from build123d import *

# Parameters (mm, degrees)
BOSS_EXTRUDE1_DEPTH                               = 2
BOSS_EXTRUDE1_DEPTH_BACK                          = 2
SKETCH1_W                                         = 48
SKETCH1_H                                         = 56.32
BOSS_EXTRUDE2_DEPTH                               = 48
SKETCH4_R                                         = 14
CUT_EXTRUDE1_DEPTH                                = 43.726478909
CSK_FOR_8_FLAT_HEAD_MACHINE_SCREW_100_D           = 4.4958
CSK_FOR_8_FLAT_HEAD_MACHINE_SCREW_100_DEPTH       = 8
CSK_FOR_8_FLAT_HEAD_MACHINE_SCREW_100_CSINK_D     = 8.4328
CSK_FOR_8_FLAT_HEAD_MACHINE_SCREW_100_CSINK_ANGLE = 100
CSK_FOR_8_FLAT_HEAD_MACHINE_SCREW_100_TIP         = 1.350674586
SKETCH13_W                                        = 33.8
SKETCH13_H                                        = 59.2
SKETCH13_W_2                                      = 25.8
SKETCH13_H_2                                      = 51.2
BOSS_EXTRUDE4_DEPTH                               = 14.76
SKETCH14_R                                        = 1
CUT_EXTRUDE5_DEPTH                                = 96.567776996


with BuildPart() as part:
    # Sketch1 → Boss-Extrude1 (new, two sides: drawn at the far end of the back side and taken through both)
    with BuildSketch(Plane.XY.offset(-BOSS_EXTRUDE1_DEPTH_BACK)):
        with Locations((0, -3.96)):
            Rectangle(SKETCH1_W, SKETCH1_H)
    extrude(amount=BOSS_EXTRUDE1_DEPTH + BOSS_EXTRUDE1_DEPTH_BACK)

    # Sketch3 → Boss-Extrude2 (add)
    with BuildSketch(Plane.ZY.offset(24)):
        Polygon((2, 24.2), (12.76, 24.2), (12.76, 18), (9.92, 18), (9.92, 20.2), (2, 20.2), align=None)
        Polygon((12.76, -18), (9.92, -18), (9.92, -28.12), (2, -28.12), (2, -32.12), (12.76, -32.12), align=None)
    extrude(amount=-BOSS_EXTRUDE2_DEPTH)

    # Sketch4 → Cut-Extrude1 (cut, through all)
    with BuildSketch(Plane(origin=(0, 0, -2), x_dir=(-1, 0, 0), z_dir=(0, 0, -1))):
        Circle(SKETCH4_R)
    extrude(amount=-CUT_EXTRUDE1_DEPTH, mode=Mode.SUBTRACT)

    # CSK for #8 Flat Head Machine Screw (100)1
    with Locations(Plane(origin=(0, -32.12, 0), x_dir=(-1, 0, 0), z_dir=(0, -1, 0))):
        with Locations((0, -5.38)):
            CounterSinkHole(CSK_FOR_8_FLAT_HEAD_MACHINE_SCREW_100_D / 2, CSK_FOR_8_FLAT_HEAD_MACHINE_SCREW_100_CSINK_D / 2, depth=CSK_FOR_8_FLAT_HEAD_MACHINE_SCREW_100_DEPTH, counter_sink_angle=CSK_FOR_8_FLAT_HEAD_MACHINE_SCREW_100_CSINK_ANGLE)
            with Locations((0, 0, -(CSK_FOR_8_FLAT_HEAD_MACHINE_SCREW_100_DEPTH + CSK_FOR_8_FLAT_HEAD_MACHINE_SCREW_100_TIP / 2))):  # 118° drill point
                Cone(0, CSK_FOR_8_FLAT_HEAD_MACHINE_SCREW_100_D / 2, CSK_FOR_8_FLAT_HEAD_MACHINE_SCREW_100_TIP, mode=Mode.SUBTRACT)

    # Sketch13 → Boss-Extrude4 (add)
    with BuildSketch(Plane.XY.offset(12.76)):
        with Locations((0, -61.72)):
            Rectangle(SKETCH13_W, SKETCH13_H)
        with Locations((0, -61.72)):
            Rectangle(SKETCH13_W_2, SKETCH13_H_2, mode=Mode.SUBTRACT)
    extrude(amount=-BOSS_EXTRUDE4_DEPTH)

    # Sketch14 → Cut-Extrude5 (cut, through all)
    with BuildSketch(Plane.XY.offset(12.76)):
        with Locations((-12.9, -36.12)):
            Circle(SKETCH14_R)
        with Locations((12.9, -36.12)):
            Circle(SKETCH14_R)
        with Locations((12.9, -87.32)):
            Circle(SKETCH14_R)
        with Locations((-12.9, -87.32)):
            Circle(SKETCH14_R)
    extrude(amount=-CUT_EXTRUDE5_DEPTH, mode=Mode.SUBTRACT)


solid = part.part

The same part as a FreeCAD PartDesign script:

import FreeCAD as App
import Part
import Sketcher

V = App.Vector
Q = App.Units.Quantity

doc = App.newDocument("Part")
params = doc.addObject("Spreadsheet::Sheet", "Params")
for row, (alias, value) in enumerate([
    ("sketch1_width", "48 mm"),
    ("sketch1_height", "56.32 mm"),
    ("pad1_length", "2 mm"),
    ("pad1_length2", "2 mm"),
    ("sketch2_width", "4 mm"),
    ("sketch2_width2", "2.2 mm"),
    ("sketch2_width3", "10.12 mm"),
    ("sketch2_height", "10.76 mm"),
    ("sketch2_height2", "7.92 mm"),
    ("pad2_length", "48 mm"),
    ("sketch3_diameter", "28 mm"),
    ("hole_diameter", "4.4958 mm"),
    ("hole_depth", "8 mm"),
    ("hole_csink_diameter", "8.4328 mm"),
    ("sketch5_width", "33.8 mm"),
    ("sketch5_width2", "25.8 mm"),
    ("sketch5_height", "59.2 mm"),
    ("sketch5_height2", "51.2 mm"),
    ("pad3_length", "14.76 mm"),
    ("sketch6_diameter", "2 mm"),
], start=1):
    params.set(f"A{row}", alias)
    params.set(f"B{row}", "=" + value)
    params.setAlias(f"B{row}", alias)

body = doc.addObject("PartDesign::Body", "Body")

# Sketch on XY plane
sketch1 = body.newObject("Sketcher::SketchObject", "Sketch")
sketch1.AttachmentSupport = (doc.getObject("XY_Plane"), [""])
sketch1.MapMode = "FlatFace"
sketch1.addGeometry([
    Part.LineSegment(V(-24, 24, 0), V(-24, -32, 0)),
    Part.LineSegment(V(-24, -32, 0), V(24, -32, 0)),
    Part.LineSegment(V(24, -32, 0), V(24, 24, 0)),
    Part.LineSegment(V(24, 24, 0), V(-24, 24, 0)),
], False)
sketch1.addConstraint([
    Sketcher.Constraint("Coincident", 0, 2, 1, 1),
    Sketcher.Constraint("Coincident", 1, 2, 2, 1),
    Sketcher.Constraint("Coincident", 2, 2, 3, 1),
    Sketcher.Constraint("Coincident", 3, 2, 0, 1),
    Sketcher.Constraint("Vertical", 0),
    Sketcher.Constraint("Horizontal", 1),
    Sketcher.Constraint("Vertical", 2),
    Sketcher.Constraint("Horizontal", 3),
    Sketcher.Constraint("DistanceX", 1, 1, 1, 2, Q("48 mm")),
    Sketcher.Constraint("DistanceX", 0, 2, -1, 1, Q("24 mm")),
    Sketcher.Constraint("DistanceY", 0, 2, 0, 1, Q("56.32 mm")),
    Sketcher.Constraint("DistanceY", -1, 1, 2, 2, Q("24.2 mm")),
])
sketch1.setExpression("Constraints[8]", "Params.sketch1_width")
sketch1.setExpression("Constraints[10]", "Params.sketch1_height")
pad1 = body.newObject("PartDesign::Pad", "Pad")
pad1.Profile = sketch1
pad1.Type = "TwoLengths"
pad1.setExpression("Length", "Params.pad1_length")
pad1.setExpression("Length2", "Params.pad1_length2")

# Sketch on YZ plane
sketch2 = body.newObject("Sketcher::SketchObject", "Sketch001")
sketch2.AttachmentSupport = (doc.getObject("YZ_Plane"), [""])
sketch2.MapMode = "FlatFace"
sketch2.AttachmentOffset = App.Placement(V(0, 0, -24), App.Rotation())
sketch2.addGeometry([
    Part.LineSegment(V(24.2, 12.8, 0), V(24.2, 2, 0)),  # 0
    Part.LineSegment(V(24.2, 2, 0), V(20.2, 2, 0)),  # 1
    Part.LineSegment(V(20.2, 2, 0), V(20.2, 9.9, 0)),  # 2
    Part.LineSegment(V(20.2, 9.9, 0), V(18, 9.9, 0)),  # 3
    Part.LineSegment(V(18, 9.9, 0), V(18, 12.8, 0)),  # 4
    Part.LineSegment(V(18, 12.8, 0), V(24.2, 12.8, 0)),  # 5
    Part.LineSegment(V(-18, 12.8, 0), V(-18, 9.9, 0)),  # 6
    Part.LineSegment(V(-18, 9.9, 0), V(-28.1, 9.9, 0)),  # 7
    Part.LineSegment(V(-28.1, 9.9, 0), V(-28.1, 2, 0)),  # 8
    Part.LineSegment(V(-28.1, 2, 0), V(-32.1, 2, 0)),  # 9
    Part.LineSegment(V(-32.1, 2, 0), V(-32.1, 12.8, 0)),  # 10
    Part.LineSegment(V(-32.1, 12.8, 0), V(-18, 12.8, 0)),  # 11
], False)
sketch2.addConstraint([
    Sketcher.Constraint("Coincident", 0, 2, 1, 1),
    Sketcher.Constraint("Coincident", 1, 2, 2, 1),
    Sketcher.Constraint("Coincident", 2, 2, 3, 1),
    Sketcher.Constraint("Coincident", 3, 2, 4, 1),
    Sketcher.Constraint("Coincident", 4, 2, 5, 1),
    Sketcher.Constraint("Coincident", 5, 2, 0, 1),
    Sketcher.Constraint("Coincident", 6, 2, 7, 1),
    Sketcher.Constraint("Coincident", 7, 2, 8, 1),
    Sketcher.Constraint("Coincident", 8, 2, 9, 1),
    Sketcher.Constraint("Coincident", 9, 2, 10, 1),
    Sketcher.Constraint("Coincident", 10, 2, 11, 1),
    Sketcher.Constraint("Coincident", 11, 2, 6, 1),
    Sketcher.Constraint("Vertical", 0),
    Sketcher.Constraint("Horizontal", 1),
    Sketcher.Constraint("Vertical", 2),
    Sketcher.Constraint("Horizontal", 3),
    Sketcher.Constraint("Vertical", 4),
    Sketcher.Constraint("Horizontal", 5),
    Sketcher.Constraint("Vertical", 6),
    Sketcher.Constraint("Horizontal", 7),
    Sketcher.Constraint("Vertical", 8),
    Sketcher.Constraint("Horizontal", 9),
    Sketcher.Constraint("Vertical", 10),
    Sketcher.Constraint("Horizontal", 11),
    Sketcher.Constraint("Symmetric", 3, 2, 6, 2, -2),
    Sketcher.Constraint("Horizontal", 1, 2, 8, 2),
    Sketcher.Constraint("Horizontal", 5, 2, 10, 2),
    Sketcher.Constraint("Equal", 1, 9),
    Sketcher.Constraint("DistanceX", 1, 2, 1, 1, Q("4 mm")),
    Sketcher.Constraint("DistanceX", 3, 2, 3, 1, Q("2.2 mm")),
    Sketcher.Constraint("DistanceY", -1, 1, 0, 2, Q("2 mm")),
    Sketcher.Constraint("DistanceX", -1, 1, 3, 2, Q("18 mm")),
    Sketcher.Constraint("DistanceX", 7, 2, 7, 1, Q("10.12 mm")),
    Sketcher.Constraint("DistanceY", 0, 2, 0, 1, Q("10.76 mm")),
    Sketcher.Constraint("DistanceY", 2, 1, 2, 2, Q("7.92 mm")),
])
sketch2.setExpression("Constraints[28]", "Params.sketch2_width")
sketch2.setExpression("Constraints[29]", "Params.sketch2_width2")
sketch2.setExpression("Constraints[32]", "Params.sketch2_width3")
sketch2.setExpression("Constraints[33]", "Params.sketch2_height")
sketch2.setExpression("Constraints[34]", "Params.sketch2_height2")
pad2 = body.newObject("PartDesign::Pad", "Pad001")
pad2.Profile = sketch2
pad2.setExpression("Length", "Params.pad2_length")

# Sketch on XY plane
sketch3 = body.newObject("Sketcher::SketchObject", "Sketch002")
sketch3.AttachmentSupport = (doc.getObject("XY_Plane"), [""])
sketch3.MapMode = "FlatFace"
sketch3.AttachmentOffset = App.Placement(V(0, 0, -2), App.Rotation())
sketch3.addGeometry(Part.Circle(V(0, 0, 0), V(0, 0, 1), 14), False)
sketch3.addConstraint([
    Sketcher.Constraint("Coincident", 0, 3, -1, 1),
    Sketcher.Constraint("Diameter", 0, Q("28 mm")),
])
sketch3.setExpression("Constraints[1]", "Params.sketch3_diameter")
pocket1 = body.newObject("PartDesign::Pocket", "Pocket")
pocket1.Profile = sketch3
pocket1.Type = "ThroughAll"
pocket1.Reversed = True

# Sketch on XZ plane
sketch4 = body.newObject("Sketcher::SketchObject", "Sketch003")
sketch4.AttachmentSupport = (doc.getObject("XZ_Plane"), [""])
sketch4.MapMode = "FlatFace"
sketch4.AttachmentOffset = App.Placement(V(0, 0, 32.12), App.Rotation())
sketch4.addGeometry(Part.Circle(V(0, 5.4, 0), V(0, 0, 1), 2.2), False)
sketch4.addConstraint([
    Sketcher.Constraint("PointOnObject", 0, 3, -2),
    Sketcher.Constraint("Diameter", 0, Q("4.4958 mm")),
    Sketcher.Constraint("DistanceY", -1, 1, 0, 3, Q("5.38 mm")),
])
doc.recompute()
hole = body.newObject("PartDesign::Hole", "Hole")
hole.Profile = sketch4
hole.ThreadType = "None"
hole.setExpression("Diameter", "Params.hole_diameter")
hole.DepthType = "Dimension"
hole.setExpression("Depth", "Params.hole_depth")
hole.DrillPoint = "Angled"
hole.DrillPointAngle = 118
hole.HoleCutType = "Countersink"
hole.setExpression("HoleCutDiameter", "Params.hole_csink_diameter")
hole.HoleCutCountersinkAngle = 100

# Sketch on XY plane
sketch5 = body.newObject("Sketcher::SketchObject", "Sketch004")
sketch5.AttachmentSupport = (doc.getObject("XY_Plane"), [""])
sketch5.MapMode = "FlatFace"
sketch5.AttachmentOffset = App.Placement(V(0, 0, 12.76), App.Rotation())
sketch5.addGeometry([
    Part.LineSegment(V(-17, -32, 0), V(-17, -91, 0)),  # 0
    Part.LineSegment(V(-17, -91, 0), V(17, -91, 0)),  # 1
    Part.LineSegment(V(17, -91, 0), V(17, -32, 0)),  # 2
    Part.LineSegment(V(17, -32, 0), V(-17, -32, 0)),  # 3
    Part.LineSegment(V(13, -87, 0), V(-13, -87, 0)),  # 4
    Part.LineSegment(V(-13, -87, 0), V(-13, -36, 0)),  # 5
    Part.LineSegment(V(-13, -36, 0), V(13, -36, 0)),  # 6
    Part.LineSegment(V(13, -36, 0), V(13, -87, 0)),  # 7
], False)
sketch5.addConstraint([
    Sketcher.Constraint("Coincident", 0, 2, 1, 1),
    Sketcher.Constraint("Coincident", 1, 2, 2, 1),
    Sketcher.Constraint("Coincident", 2, 2, 3, 1),
    Sketcher.Constraint("Coincident", 3, 2, 0, 1),
    Sketcher.Constraint("Coincident", 4, 2, 5, 1),
    Sketcher.Constraint("Coincident", 5, 2, 6, 1),
    Sketcher.Constraint("Coincident", 6, 2, 7, 1),
    Sketcher.Constraint("Coincident", 7, 2, 4, 1),
    Sketcher.Constraint("Vertical", 0),
    Sketcher.Constraint("Horizontal", 1),
    Sketcher.Constraint("Vertical", 2),
    Sketcher.Constraint("Horizontal", 3),
    Sketcher.Constraint("Horizontal", 4),
    Sketcher.Constraint("Vertical", 5),
    Sketcher.Constraint("Horizontal", 6),
    Sketcher.Constraint("Vertical", 7),
    Sketcher.Constraint("DistanceX", 1, 1, 1, 2, Q("33.8 mm")),
    Sketcher.Constraint("DistanceX", 4, 2, 4, 1, Q("25.8 mm")),
    Sketcher.Constraint("DistanceY", 0, 2, 0, 1, Q("59.2 mm")),
    Sketcher.Constraint("DistanceY", 5, 1, 5, 2, Q("51.2 mm")),
    Sketcher.Constraint("DistanceX", 0, 2, 4, 2, Q("4 mm")),
    Sketcher.Constraint("DistanceY", 0, 2, 4, 2, Q("4 mm")),
    Sketcher.Constraint("DistanceX", 0, 2, -1, 1, Q("16.9 mm")),
    Sketcher.Constraint("DistanceY", 0, 2, -1, 1, Q("91.32 mm")),
])
sketch5.setExpression("Constraints[16]", "Params.sketch5_width")
sketch5.setExpression("Constraints[17]", "Params.sketch5_width2")
sketch5.setExpression("Constraints[18]", "Params.sketch5_height")
sketch5.setExpression("Constraints[19]", "Params.sketch5_height2")
pad3 = body.newObject("PartDesign::Pad", "Pad002")
pad3.Profile = sketch5
pad3.setExpression("Length", "Params.pad3_length")
pad3.Reversed = True

# Sketch on XY plane
sketch6 = body.newObject("Sketcher::SketchObject", "Sketch005")
sketch6.AttachmentSupport = (doc.getObject("XY_Plane"), [""])
sketch6.MapMode = "FlatFace"
sketch6.AttachmentOffset = App.Placement(V(0, 0, 12.76), App.Rotation())
sketch6.addGeometry([
    Part.Circle(V(-12.9, -36.1, 0), V(0, 0, 1), 1),
    Part.Circle(V(12.9, -36.1, 0), V(0, 0, 1), 1),
    Part.Circle(V(12.9, -87.3, 0), V(0, 0, 1), 1),
    Part.Circle(V(-12.9, -87.3, 0), V(0, 0, 1), 1),
], False)
sketch6.addConstraint([
    Sketcher.Constraint("Equal", 0, 1),
    Sketcher.Constraint("Equal", 1, 2),
    Sketcher.Constraint("Equal", 2, 3),
    Sketcher.Constraint("Symmetric", 0, 3, 1, 3, -2),
    Sketcher.Constraint("Symmetric", 2, 3, 3, 3, -2),
    Sketcher.Constraint("Vertical", 1, 3, 2, 3),
    Sketcher.Constraint("Diameter", 0, Q("2 mm")),
    Sketcher.Constraint("DistanceX", 0, 3, -1, 1, Q("12.9 mm")),
    Sketcher.Constraint("DistanceY", 2, 3, 1, 3, Q("51.2 mm")),
    Sketcher.Constraint("DistanceY", 0, 3, -1, 1, Q("36.12 mm")),
])
sketch6.setExpression("Constraints[6]", "Params.sketch6_diameter")
pocket2 = body.newObject("PartDesign::Pocket", "Pocket001")
pocket2.Profile = sketch6
pocket2.Type = "ThroughAll"

doc.recompute()
